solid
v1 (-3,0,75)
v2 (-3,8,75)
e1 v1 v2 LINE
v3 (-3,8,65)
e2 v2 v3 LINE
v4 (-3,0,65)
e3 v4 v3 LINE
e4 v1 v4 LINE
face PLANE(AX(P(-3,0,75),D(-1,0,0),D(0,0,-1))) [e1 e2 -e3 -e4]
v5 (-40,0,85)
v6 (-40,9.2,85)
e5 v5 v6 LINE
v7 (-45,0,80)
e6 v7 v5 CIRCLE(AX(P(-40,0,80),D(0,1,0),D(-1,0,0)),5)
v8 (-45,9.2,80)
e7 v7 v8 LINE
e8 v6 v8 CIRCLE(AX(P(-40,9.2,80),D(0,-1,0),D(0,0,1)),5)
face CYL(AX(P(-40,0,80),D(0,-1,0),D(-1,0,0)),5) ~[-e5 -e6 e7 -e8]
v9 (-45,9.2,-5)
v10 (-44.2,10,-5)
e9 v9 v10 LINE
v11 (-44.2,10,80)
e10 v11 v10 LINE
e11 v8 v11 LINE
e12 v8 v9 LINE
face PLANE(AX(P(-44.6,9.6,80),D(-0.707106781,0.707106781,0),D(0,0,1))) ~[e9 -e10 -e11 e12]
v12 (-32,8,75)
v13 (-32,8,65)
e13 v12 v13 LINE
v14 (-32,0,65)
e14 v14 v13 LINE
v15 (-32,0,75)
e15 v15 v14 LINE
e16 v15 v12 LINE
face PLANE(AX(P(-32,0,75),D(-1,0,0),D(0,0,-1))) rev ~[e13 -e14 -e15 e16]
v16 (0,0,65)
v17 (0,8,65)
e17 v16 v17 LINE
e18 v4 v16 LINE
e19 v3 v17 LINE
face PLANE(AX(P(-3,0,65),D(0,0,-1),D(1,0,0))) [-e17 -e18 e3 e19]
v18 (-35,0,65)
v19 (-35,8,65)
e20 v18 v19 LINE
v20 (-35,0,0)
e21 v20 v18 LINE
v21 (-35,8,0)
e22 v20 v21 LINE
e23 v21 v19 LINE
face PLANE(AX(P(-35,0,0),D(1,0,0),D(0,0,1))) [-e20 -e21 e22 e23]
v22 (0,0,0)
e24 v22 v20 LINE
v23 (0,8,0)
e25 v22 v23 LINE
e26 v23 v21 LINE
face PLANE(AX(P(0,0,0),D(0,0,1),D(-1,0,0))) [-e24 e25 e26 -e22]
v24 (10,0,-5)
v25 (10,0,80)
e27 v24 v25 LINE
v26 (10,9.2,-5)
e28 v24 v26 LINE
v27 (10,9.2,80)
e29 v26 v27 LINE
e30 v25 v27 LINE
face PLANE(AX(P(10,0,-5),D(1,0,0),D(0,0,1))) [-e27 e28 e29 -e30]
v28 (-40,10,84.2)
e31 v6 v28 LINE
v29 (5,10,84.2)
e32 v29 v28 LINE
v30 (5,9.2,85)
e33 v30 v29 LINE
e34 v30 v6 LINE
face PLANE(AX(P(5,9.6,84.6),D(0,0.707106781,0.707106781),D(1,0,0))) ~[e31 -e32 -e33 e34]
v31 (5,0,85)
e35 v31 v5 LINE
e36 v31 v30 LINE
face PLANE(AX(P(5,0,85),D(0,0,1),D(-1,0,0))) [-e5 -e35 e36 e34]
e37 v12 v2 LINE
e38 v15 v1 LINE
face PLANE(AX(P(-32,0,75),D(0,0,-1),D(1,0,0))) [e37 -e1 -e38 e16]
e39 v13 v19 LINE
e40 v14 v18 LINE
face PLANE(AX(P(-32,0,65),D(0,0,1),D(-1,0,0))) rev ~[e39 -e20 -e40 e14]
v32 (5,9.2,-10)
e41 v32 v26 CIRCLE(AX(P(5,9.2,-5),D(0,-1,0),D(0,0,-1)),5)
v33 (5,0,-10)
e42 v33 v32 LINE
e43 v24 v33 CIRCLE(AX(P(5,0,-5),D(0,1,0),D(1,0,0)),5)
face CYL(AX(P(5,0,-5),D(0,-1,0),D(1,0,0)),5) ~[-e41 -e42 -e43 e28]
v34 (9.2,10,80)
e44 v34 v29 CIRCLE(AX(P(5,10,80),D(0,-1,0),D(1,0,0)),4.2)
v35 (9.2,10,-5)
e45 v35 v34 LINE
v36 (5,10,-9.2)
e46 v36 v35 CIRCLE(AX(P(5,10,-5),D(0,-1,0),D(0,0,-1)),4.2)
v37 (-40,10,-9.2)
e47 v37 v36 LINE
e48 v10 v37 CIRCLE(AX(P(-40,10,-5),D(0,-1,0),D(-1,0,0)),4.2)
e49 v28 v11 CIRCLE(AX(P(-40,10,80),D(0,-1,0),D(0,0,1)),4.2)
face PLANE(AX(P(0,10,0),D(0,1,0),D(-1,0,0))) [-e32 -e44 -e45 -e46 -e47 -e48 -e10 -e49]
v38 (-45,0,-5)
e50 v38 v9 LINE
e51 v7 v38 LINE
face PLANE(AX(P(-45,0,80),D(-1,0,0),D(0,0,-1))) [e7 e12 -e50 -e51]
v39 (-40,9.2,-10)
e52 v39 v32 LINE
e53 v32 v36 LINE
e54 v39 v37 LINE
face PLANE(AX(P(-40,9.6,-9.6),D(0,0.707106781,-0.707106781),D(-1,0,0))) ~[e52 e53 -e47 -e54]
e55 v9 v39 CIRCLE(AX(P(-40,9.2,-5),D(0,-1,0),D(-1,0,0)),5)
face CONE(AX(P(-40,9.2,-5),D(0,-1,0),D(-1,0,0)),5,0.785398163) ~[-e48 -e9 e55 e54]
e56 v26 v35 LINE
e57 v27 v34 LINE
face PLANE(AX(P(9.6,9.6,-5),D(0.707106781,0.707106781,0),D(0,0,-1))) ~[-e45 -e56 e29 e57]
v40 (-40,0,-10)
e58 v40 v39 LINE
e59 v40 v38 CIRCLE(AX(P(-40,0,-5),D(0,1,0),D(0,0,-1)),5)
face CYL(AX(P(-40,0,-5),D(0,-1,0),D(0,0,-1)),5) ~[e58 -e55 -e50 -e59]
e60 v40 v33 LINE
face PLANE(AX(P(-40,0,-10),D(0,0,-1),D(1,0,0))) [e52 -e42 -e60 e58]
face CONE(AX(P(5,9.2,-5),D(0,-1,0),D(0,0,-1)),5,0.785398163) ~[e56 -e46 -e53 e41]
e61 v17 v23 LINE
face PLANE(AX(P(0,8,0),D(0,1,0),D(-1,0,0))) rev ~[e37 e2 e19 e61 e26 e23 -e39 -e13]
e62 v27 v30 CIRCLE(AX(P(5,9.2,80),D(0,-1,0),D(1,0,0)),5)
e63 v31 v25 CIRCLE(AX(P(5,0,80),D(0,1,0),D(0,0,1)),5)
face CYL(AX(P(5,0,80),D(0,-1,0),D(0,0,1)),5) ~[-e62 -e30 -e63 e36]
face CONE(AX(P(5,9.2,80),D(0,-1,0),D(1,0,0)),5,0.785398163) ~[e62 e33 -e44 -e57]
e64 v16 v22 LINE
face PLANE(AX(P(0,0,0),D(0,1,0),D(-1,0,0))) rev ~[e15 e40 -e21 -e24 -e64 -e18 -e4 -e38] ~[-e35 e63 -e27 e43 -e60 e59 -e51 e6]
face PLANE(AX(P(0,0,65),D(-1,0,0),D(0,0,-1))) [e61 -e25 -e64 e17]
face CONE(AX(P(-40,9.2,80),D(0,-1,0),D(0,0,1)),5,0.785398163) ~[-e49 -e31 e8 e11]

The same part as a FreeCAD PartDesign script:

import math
import FreeCAD as App
import Part
import Sketcher
Q = App.Units.Quantity


def edges_at(feature, points):
    """Names of the edges that pass closest to the given points."""
    edges = feature.Shape.Edges
    near = lambda p: min(range(len(edges)), key=lambda i: edges[i].distToShape(Part.Vertex(*p))[0])
    return sorted({f"Edge{near(p) + 1}" for p in points})

doc = App.newDocument("Part")
params = doc.addObject("Spreadsheet::Sheet", "Params")
for row, (alias, value) in enumerate([
    ("sketch1_radius", "5 mm"),
    ("sketch1_width", "45 mm"),
    ("sketch1_height", "85 mm"),
    ("pad1_length", "10 mm"),
    ("sketch2_width", "35 mm"),
    ("sketch2_width2", "3 mm"),
    ("sketch2_height", "10 mm"),
    ("pocket1_length", "8 mm"),
    ("chamfer_size", "0.8 mm"),
], start=1):
    params.set(f"A{row}", alias)
    params.set(f"B{row}", "=" + value)
    params.setAlias(f"B{row}", alias)

body = doc.addObject("PartDesign::Body", "Body")

# Sketch on XZ plane
sketch1 = body.newObject("Sketcher::SketchObject", "Sketch")
sketch1.AttachmentSupport = (doc.getObject("XZ_Plane"), [""])
sketch1.MapMode = "FlatFace"
sketch1.addGeometry([
    Part.LineSegment(App.Vector(5, -10, 0), App.Vector(-40, -10, 0)),  # 0
    Part.ArcOfCircle(Part.Circle(App.Vector(-40, -5, 0), App.Vector(0, 0, 1), 5), math.radians(180), math.radians(270)),  # 1
    Part.LineSegment(App.Vector(-45, -5, 0), App.Vector(-45, 80, 0)),  # 2
    Part.ArcOfCircle(Part.Circle(App.Vector(-40, 80, 0), App.Vector(0, 0, 1), 5), math.radians(90), math.radians(180)),  # 3
    Part.LineSegment(App.Vector(-40, 85, 0), App.Vector(5, 85, 0)),  # 4
    Part.ArcOfCircle(Part.Circle(App.Vector(5, 80, 0), App.Vector(0, 0, 1), 5), math.radians(0), math.radians(90)),  # 5
    Part.LineSegment(App.Vector(10, 80, 0), App.Vector(10, -5, 0)),  # 6
    Part.ArcOfCircle(Part.Circle(App.Vector(5, -5, 0), App.Vector(0, 0, 1), 5), math.radians(-90), math.radians(0)),  # 7
], False)
sketch1.addConstraint([
    Sketcher.Constraint("Tangent", 0, 2, 1, 2),
    Sketcher.Constraint("Tangent", 1, 1, 2, 1),
    Sketcher.Constraint("Tangent", 2, 2, 3, 2),
    Sketcher.Constraint("Tangent", 3, 1, 4, 1),
    Sketcher.Constraint("Tangent", 4, 2, 5, 2),
    Sketcher.Constraint("Tangent", 5, 1, 6, 1),
    Sketcher.Constraint("Tangent", 6, 2, 7, 2),
    Sketcher.Constraint("Tangent", 7, 1, 0, 1),
    Sketcher.Constraint("Horizontal", 0),
    Sketcher.Constraint("Vertical", 2),
    Sketcher.Constraint("Horizontal", 4),
    Sketcher.Constraint("Vertical", 6),
    Sketcher.Constraint("Equal", 1, 3),
    Sketcher.Constraint("Equal", 3, 5),
    Sketcher.Constraint("Equal", 5, 7),
    Sketcher.Constraint("Radius", 1, Q("5 mm")),
    Sketcher.Constraint("DistanceY", 0, 2, -1, 1, Q("10 mm")),
    Sketcher.Constraint("DistanceX", -1, 1, 5, 1, Q("10 mm")),
    Sketcher.Constraint("DistanceX", 0, 2, 0, 1, Q("45 mm")),
    Sketcher.Constraint("DistanceY", 2, 1, 2, 2, Q("85 mm")),
])
sketch1.setExpression("Constraints[15]", "Params.sketch1_radius")
sketch1.setExpression("Constraints[18]", "Params.sketch1_width")
sketch1.setExpression("Constraints[19]", "Params.sketch1_height")
pad1 = body.newObject("PartDesign::Pad", "Pad")
pad1.Profile = sketch1
pad1.setExpression("Length", "Params.pad1_length")
pad1.Reversed = True

# Sketch on XZ plane
sketch2 = body.newObject("Sketcher::SketchObject", "Sketch001")
sketch2.AttachmentSupport = (doc.getObject("XZ_Plane"), [""])
sketch2.MapMode = "FlatFace"
sketch2.addGeometry([
    Part.LineSegment(App.Vector(0, 65, 0), App.Vector(0, 0, 0)),  # 0
    Part.LineSegment(App.Vector(0, 0, 0), App.Vector(-35, 0, 0)),  # 1
    Part.LineSegment(App.Vector(-35, 0, 0), App.Vector(-35, 65, 0)),  # 2
    Part.LineSegment(App.Vector(-35, 65, 0), App.Vector(-32, 65, 0)),  # 3
    Part.LineSegment(App.Vector(-32, 65, 0), App.Vector(-32, 75, 0)),  # 4
    Part.LineSegment(App.Vector(-32, 75, 0), App.Vector(-3, 75, 0)),  # 5
    Part.LineSegment(App.Vector(-3, 75, 0), App.Vector(-3, 65, 0)),  # 6
    Part.LineSegment(App.Vector(-3, 65, 0), App.Vector(0, 65, 0)),  # 7
], False)
sketch2.addConstraint([
    Sketcher.Constraint("Coincident", 0, 2, 1, 1),
    Sketcher.Constraint("Coincident", 1, 2, 2, 1),
    Sketcher.Constraint("Coincident", 2, 2, 3, 1),
    Sketcher.Constraint("Coincident", 3, 2, 4, 1),
    Sketcher.Constraint("Coincident", 4, 2, 5, 1),
    Sketcher.Constraint("Coincident", 5, 2, 6, 1),
    Sketcher.Constraint("Coincident", 6, 2, 7, 1),
    Sketcher.Constraint("Coincident", 7, 2, 0, 1),
    Sketcher.Constraint("Vertical", 0),
    Sketcher.Constraint("Horizontal", 1),
    Sketcher.Constraint("Vertical", 2),
    Sketcher.Constraint("Horizontal", 3),
    Sketcher.Constraint("Vertical", 4),
    Sketcher.Constraint("Horizontal", 5),
    Sketcher.Constraint("Vertical", 6),
    Sketcher.Constraint("Horizontal", 7),
    Sketcher.Constraint("Coincident", 0, 2, -1, 1),
    Sketcher.Constraint("Horizontal", 3, 2, 6, 2),
    Sketcher.Constraint("Equal", 3, 7),
    Sketcher.Constraint("DistanceX", 1, 2, 1, 1, Q("35 mm")),
    Sketcher.Constraint("DistanceX", 3, 1, 3, 2, Q("3 mm")),
    Sketcher.Constraint("DistanceY", 4, 1, 4, 2, Q("10 mm")),
    Sketcher.Constraint("DistanceY", -1, 1, 4, 2, Q("75 mm")),
])
sketch2.setExpression("Constraints[19]", "Params.sketch2_width")
sketch2.setExpression("Constraints[20]", "Params.sketch2_width2")
sketch2.setExpression("Constraints[21]", "Params.sketch2_height")
pocket1 = body.newObject("PartDesign::Pocket", "Pocket")
pocket1.Profile = sketch2
pocket1.setExpression("Length", "Params.pocket1_length")
doc.recompute()

chamfer = body.newObject("PartDesign::Chamfer", "Chamfer")
chamfer.Base = (pocket1, edges_at(pocket1, [
    (-17.5, 10, -10),
    (-43.535, 10, -8.536),
    (-45, 10, 37.5),
    (-43.535, 10, 83.535),
    (-17.5, 10, 85),
    (8.536, 10, 83.535),
    (10, 10, 37.5),
    (8.536, 10, -8.536),
]))
chamfer.setExpression("Size", "Params.chamfer_size")

doc.recompute()
